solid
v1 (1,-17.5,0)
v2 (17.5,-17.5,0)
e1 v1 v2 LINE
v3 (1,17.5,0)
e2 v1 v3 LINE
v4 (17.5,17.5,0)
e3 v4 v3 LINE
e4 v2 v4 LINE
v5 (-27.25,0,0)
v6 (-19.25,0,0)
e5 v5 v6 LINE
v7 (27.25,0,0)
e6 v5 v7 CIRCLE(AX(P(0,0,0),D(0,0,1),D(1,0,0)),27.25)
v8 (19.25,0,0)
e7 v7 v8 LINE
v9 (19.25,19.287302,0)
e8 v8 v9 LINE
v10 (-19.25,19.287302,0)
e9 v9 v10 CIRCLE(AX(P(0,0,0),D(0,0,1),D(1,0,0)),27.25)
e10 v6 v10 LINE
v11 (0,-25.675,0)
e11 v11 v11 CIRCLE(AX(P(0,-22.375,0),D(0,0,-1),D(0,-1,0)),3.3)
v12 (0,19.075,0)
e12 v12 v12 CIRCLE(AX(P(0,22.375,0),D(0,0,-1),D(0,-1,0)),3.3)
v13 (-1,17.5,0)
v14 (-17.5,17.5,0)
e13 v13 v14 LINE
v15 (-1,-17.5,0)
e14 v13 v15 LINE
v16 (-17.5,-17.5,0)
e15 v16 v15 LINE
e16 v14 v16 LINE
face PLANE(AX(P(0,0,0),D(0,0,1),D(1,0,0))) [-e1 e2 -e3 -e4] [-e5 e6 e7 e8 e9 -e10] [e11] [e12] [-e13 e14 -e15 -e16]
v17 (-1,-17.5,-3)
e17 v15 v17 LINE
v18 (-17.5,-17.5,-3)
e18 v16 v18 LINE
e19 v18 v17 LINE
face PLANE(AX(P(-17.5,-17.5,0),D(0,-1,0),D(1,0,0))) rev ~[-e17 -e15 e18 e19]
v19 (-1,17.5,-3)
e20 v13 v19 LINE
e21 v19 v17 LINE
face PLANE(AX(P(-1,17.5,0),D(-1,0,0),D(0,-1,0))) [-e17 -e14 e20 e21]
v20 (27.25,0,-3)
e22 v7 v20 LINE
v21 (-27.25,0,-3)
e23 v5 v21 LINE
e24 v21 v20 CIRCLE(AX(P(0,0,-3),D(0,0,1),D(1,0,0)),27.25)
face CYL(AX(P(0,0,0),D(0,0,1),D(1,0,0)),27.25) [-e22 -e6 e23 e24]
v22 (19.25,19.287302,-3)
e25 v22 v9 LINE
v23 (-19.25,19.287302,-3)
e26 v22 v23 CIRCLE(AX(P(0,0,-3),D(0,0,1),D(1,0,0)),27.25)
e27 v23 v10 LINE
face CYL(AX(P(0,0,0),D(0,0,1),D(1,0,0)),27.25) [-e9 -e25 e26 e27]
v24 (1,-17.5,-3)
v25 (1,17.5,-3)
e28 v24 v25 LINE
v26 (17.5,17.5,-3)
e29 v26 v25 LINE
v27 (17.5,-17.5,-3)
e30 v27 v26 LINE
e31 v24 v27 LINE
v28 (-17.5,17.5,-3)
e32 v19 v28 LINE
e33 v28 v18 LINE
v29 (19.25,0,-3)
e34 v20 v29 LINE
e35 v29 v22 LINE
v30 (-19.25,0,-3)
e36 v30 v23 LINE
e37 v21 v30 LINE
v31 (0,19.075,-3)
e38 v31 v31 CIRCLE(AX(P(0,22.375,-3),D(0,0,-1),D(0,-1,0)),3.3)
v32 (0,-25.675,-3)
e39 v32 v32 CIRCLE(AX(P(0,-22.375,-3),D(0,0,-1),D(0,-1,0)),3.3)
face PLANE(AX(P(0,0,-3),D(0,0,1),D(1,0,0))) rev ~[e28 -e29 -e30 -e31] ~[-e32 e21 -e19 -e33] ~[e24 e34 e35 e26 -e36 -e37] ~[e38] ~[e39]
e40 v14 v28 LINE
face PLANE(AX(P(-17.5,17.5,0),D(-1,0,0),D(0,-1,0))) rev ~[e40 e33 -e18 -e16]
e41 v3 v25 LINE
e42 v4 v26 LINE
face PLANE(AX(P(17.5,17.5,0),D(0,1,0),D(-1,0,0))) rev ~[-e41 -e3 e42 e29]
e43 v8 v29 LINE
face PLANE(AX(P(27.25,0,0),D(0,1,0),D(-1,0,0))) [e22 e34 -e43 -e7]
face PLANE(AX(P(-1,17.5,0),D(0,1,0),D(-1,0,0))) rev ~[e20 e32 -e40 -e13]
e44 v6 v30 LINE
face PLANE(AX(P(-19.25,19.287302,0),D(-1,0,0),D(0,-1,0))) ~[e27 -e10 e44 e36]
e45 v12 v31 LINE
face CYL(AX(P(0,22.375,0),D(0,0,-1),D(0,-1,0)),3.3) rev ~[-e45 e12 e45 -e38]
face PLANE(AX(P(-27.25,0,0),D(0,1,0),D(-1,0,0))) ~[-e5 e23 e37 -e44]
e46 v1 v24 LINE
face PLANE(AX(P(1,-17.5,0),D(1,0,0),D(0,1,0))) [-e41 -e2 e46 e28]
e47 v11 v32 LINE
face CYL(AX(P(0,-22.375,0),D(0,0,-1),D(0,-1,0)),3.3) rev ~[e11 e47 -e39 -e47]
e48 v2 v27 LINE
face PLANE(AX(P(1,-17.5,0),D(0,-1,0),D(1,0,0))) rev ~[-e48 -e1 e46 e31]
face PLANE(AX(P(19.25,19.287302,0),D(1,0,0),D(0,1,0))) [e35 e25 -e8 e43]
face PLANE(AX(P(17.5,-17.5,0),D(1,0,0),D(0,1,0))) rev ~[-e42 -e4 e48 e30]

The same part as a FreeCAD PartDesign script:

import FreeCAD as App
import Part
import Sketcher
from FreeCAD import Vector

doc = App.newDocument("Part")
params = doc.addObject("Spreadsheet::Sheet", "Params")
for row, (alias, value) in enumerate([
    ("sketch1_diameter", "54.5 mm"),
    ("sketch1_height", "35 mm"),
    ("pad1_length", "3 mm"),
    ("sketch2_width", "8 mm"),
    ("sketch2_height", "25 mm"),
    ("pocket1_length", "10 mm"),
    ("sketch3_diameter", "6.6 mm"),
    ("hole_diameter", "6.6 mm"),
], start=1):
    params.set(f"A{row}", alias)
    params.set(f"B{row}", "=" + value)
    params.setAlias(f"B{row}", alias)

body = doc.addObject("PartDesign::Body", "Body")

sketch1 = doc.addObject("Sketcher::SketchObject", "Sketch")
body.addObject(sketch1)
sketch1.AttachmentSupport = (doc.XY_Plane, [""])
sketch1.MapMode = "FlatFace"
sketch1.addGeometry([
    Part.Circle(Vector(0, 0, 0), Vector(0, 0, 1), 27),
    Part.LineSegment(Vector(1, 18, 0), Vector(18, 18, 0)),
    Part.LineSegment(Vector(18, 18, 0), Vector(18, -18, 0)),
    Part.LineSegment(Vector(18, -18, 0), Vector(1, -18, 0)),
    Part.LineSegment(Vector(1, -18, 0), Vector(1, 18, 0)),
    Part.LineSegment(Vector(-18, 18, 0), Vector(-1, 18, 0)),
    Part.LineSegment(Vector(-1, 18, 0), Vector(-1, -18, 0)),
    Part.LineSegment(Vector(-1, -18, 0), Vector(-18, -18, 0)),
    Part.LineSegment(Vector(-18, -18, 0), Vector(-18, 18, 0)),
], False)
sketch1.addConstraint([
    Sketcher.Constraint("Coincident", 1, 2, 2, 1),
    Sketcher.Constraint("Coincident", 2, 2, 3, 1),
    Sketcher.Constraint("Coincident", 3, 2, 4, 1),
    Sketcher.Constraint("Coincident", 4, 2, 1, 1),
    Sketcher.Constraint("Coincident", 5, 2, 6, 1),
    Sketcher.Constraint("Coincident", 6, 2, 7, 1),
    Sketcher.Constraint("Coincident", 7, 2, 8, 1),
    Sketcher.Constraint("Coincident", 8, 2, 5, 1),
    Sketcher.Constraint("Horizontal", 1),
    Sketcher.Constraint("Vertical", 2),
    Sketcher.Constraint("Horizontal", 3),
    Sketcher.Constraint("Vertical", 4),
    Sketcher.Constraint("Horizontal", 5),
    Sketcher.Constraint("Vertical", 6),
    Sketcher.Constraint("Horizontal", 7),
    Sketcher.Constraint("Vertical", 8),
    Sketcher.Constraint("Coincident", 0, 3, -1, 1),
    Sketcher.Constraint("Symmetric", 3, 2, 5, 2, -1, 1),
    Sketcher.Constraint("Symmetric", 1, 2, 7, 2, -1, 1),
    Sketcher.Constraint("Horizontal", 4, 2, 5, 2),
    Sketcher.Constraint("Diameter", 0, 54.5),
    Sketcher.Constraint("DistanceY", 2, 2, 2, 1, 35.0),
    Sketcher.Constraint("DistanceX", 5, 2, 4, 2, 2.0),
    Sketcher.Constraint("DistanceX", 7, 2, 2, 2, 35.0),
])
sketch1.setExpression("Constraints[20]", "Params.sketch1_diameter")
sketch1.setExpression("Constraints[21]", "Params.sketch1_height")
pad1 = doc.addObject("PartDesign::Pad", "Pad")
body.addObject(pad1)
pad1.Profile = sketch1
pad1.setExpression("Length", "Params.pad1_length")
pad1.Reversed = True

sketch2 = doc.addObject("Sketcher::SketchObject", "Sketch001")
body.addObject(sketch2)
sketch2.AttachmentSupport = (doc.XY_Plane, [""])
sketch2.MapMode = "FlatFace"
sketch2.addGeometry([
    Part.LineSegment(Vector(19, 25, 0), Vector(19, 0, 0)),
    Part.LineSegment(Vector(19, 0, 0), Vector(27, 0, 0)),
    Part.LineSegment(Vector(27, 0, 0), Vector(27, 25, 0)),
    Part.LineSegment(Vector(27, 25, 0), Vector(19, 25, 0)),
], False)
sketch2.addConstraint([
    Sketcher.Constraint("Coincident", 0, 2, 1, 1),
    Sketcher.Constraint("Coincident", 1, 2, 2, 1),
    Sketcher.Constraint("Coincident", 2, 2, 3, 1),
    Sketcher.Constraint("Coincident", 3, 2, 0, 1),
    Sketcher.Constraint("Vertical", 0),
    Sketcher.Constraint("Horizontal", 1),
    Sketcher.Constraint("Vertical", 2),
    Sketcher.Constraint("Horizontal", 3),
    Sketcher.Constraint("PointOnObject", 0, 2, -1),
    Sketcher.Constraint("DistanceX", 1, 1, 1, 2, 8.0),
    Sketcher.Constraint("DistanceY", 0, 2, 0, 1, 25.0),
    Sketcher.Constraint("DistanceX", -1, 1, 0, 2, 19.25),
])
sketch2.setExpression("Constraints[9]", "Params.sketch2_width")
sketch2.setExpression("Constraints[10]", "Params.sketch2_height")
pocket1 = doc.addObject("PartDesign::Pocket", "Pocket")
body.addObject(pocket1)
pocket1.Profile = sketch2
pocket1.setExpression("Length", "Params.pocket1_length")
doc.recompute()

mirrored = doc.addObject("PartDesign::Mirrored", "Mirrored")
body.addObject(mirrored)
mirrored.Originals = [pocket1]
mirrored.MirrorPlane = (doc.YZ_Plane, [""])
body.Tip = mirrored

sketch3 = doc.addObject("Sketcher::SketchObject", "Sketch002")
body.addObject(sketch3)
sketch3.AttachmentSupport = (doc.XY_Plane, [""])
sketch3.MapMode = "FlatFace"
sketch3.addGeometry([
    Part.Circle(Vector(0, 22.4, 0), Vector(0, 0, 1), 3.3),
    Part.Circle(Vector(0, -22.4, 0), Vector(0, 0, 1), 3.3),
], False)
sketch3.addConstraint([
    Sketcher.Constraint("Equal", 0, 1),
    Sketcher.Constraint("Symmetric", 0, 3, 1, 3, -1, 1),
    Sketcher.Constraint("PointOnObject", 0, 3, -2),
    Sketcher.Constraint("Diameter", 0, 6.6),
    Sketcher.Constraint("DistanceY", 1, 3, 0, 3, 44.75),
])
sketch3.setExpression("Constraints[3]", "Params.sketch3_diameter")
doc.recompute()
hole = doc.addObject("PartDesign::Hole", "Hole")
body.addObject(hole)
hole.Profile = sketch3
hole.ThreadType = "None"
hole.setExpression("Diameter", "Params.hole_diameter")
hole.DepthType = "ThroughAll"

doc.recompute()
